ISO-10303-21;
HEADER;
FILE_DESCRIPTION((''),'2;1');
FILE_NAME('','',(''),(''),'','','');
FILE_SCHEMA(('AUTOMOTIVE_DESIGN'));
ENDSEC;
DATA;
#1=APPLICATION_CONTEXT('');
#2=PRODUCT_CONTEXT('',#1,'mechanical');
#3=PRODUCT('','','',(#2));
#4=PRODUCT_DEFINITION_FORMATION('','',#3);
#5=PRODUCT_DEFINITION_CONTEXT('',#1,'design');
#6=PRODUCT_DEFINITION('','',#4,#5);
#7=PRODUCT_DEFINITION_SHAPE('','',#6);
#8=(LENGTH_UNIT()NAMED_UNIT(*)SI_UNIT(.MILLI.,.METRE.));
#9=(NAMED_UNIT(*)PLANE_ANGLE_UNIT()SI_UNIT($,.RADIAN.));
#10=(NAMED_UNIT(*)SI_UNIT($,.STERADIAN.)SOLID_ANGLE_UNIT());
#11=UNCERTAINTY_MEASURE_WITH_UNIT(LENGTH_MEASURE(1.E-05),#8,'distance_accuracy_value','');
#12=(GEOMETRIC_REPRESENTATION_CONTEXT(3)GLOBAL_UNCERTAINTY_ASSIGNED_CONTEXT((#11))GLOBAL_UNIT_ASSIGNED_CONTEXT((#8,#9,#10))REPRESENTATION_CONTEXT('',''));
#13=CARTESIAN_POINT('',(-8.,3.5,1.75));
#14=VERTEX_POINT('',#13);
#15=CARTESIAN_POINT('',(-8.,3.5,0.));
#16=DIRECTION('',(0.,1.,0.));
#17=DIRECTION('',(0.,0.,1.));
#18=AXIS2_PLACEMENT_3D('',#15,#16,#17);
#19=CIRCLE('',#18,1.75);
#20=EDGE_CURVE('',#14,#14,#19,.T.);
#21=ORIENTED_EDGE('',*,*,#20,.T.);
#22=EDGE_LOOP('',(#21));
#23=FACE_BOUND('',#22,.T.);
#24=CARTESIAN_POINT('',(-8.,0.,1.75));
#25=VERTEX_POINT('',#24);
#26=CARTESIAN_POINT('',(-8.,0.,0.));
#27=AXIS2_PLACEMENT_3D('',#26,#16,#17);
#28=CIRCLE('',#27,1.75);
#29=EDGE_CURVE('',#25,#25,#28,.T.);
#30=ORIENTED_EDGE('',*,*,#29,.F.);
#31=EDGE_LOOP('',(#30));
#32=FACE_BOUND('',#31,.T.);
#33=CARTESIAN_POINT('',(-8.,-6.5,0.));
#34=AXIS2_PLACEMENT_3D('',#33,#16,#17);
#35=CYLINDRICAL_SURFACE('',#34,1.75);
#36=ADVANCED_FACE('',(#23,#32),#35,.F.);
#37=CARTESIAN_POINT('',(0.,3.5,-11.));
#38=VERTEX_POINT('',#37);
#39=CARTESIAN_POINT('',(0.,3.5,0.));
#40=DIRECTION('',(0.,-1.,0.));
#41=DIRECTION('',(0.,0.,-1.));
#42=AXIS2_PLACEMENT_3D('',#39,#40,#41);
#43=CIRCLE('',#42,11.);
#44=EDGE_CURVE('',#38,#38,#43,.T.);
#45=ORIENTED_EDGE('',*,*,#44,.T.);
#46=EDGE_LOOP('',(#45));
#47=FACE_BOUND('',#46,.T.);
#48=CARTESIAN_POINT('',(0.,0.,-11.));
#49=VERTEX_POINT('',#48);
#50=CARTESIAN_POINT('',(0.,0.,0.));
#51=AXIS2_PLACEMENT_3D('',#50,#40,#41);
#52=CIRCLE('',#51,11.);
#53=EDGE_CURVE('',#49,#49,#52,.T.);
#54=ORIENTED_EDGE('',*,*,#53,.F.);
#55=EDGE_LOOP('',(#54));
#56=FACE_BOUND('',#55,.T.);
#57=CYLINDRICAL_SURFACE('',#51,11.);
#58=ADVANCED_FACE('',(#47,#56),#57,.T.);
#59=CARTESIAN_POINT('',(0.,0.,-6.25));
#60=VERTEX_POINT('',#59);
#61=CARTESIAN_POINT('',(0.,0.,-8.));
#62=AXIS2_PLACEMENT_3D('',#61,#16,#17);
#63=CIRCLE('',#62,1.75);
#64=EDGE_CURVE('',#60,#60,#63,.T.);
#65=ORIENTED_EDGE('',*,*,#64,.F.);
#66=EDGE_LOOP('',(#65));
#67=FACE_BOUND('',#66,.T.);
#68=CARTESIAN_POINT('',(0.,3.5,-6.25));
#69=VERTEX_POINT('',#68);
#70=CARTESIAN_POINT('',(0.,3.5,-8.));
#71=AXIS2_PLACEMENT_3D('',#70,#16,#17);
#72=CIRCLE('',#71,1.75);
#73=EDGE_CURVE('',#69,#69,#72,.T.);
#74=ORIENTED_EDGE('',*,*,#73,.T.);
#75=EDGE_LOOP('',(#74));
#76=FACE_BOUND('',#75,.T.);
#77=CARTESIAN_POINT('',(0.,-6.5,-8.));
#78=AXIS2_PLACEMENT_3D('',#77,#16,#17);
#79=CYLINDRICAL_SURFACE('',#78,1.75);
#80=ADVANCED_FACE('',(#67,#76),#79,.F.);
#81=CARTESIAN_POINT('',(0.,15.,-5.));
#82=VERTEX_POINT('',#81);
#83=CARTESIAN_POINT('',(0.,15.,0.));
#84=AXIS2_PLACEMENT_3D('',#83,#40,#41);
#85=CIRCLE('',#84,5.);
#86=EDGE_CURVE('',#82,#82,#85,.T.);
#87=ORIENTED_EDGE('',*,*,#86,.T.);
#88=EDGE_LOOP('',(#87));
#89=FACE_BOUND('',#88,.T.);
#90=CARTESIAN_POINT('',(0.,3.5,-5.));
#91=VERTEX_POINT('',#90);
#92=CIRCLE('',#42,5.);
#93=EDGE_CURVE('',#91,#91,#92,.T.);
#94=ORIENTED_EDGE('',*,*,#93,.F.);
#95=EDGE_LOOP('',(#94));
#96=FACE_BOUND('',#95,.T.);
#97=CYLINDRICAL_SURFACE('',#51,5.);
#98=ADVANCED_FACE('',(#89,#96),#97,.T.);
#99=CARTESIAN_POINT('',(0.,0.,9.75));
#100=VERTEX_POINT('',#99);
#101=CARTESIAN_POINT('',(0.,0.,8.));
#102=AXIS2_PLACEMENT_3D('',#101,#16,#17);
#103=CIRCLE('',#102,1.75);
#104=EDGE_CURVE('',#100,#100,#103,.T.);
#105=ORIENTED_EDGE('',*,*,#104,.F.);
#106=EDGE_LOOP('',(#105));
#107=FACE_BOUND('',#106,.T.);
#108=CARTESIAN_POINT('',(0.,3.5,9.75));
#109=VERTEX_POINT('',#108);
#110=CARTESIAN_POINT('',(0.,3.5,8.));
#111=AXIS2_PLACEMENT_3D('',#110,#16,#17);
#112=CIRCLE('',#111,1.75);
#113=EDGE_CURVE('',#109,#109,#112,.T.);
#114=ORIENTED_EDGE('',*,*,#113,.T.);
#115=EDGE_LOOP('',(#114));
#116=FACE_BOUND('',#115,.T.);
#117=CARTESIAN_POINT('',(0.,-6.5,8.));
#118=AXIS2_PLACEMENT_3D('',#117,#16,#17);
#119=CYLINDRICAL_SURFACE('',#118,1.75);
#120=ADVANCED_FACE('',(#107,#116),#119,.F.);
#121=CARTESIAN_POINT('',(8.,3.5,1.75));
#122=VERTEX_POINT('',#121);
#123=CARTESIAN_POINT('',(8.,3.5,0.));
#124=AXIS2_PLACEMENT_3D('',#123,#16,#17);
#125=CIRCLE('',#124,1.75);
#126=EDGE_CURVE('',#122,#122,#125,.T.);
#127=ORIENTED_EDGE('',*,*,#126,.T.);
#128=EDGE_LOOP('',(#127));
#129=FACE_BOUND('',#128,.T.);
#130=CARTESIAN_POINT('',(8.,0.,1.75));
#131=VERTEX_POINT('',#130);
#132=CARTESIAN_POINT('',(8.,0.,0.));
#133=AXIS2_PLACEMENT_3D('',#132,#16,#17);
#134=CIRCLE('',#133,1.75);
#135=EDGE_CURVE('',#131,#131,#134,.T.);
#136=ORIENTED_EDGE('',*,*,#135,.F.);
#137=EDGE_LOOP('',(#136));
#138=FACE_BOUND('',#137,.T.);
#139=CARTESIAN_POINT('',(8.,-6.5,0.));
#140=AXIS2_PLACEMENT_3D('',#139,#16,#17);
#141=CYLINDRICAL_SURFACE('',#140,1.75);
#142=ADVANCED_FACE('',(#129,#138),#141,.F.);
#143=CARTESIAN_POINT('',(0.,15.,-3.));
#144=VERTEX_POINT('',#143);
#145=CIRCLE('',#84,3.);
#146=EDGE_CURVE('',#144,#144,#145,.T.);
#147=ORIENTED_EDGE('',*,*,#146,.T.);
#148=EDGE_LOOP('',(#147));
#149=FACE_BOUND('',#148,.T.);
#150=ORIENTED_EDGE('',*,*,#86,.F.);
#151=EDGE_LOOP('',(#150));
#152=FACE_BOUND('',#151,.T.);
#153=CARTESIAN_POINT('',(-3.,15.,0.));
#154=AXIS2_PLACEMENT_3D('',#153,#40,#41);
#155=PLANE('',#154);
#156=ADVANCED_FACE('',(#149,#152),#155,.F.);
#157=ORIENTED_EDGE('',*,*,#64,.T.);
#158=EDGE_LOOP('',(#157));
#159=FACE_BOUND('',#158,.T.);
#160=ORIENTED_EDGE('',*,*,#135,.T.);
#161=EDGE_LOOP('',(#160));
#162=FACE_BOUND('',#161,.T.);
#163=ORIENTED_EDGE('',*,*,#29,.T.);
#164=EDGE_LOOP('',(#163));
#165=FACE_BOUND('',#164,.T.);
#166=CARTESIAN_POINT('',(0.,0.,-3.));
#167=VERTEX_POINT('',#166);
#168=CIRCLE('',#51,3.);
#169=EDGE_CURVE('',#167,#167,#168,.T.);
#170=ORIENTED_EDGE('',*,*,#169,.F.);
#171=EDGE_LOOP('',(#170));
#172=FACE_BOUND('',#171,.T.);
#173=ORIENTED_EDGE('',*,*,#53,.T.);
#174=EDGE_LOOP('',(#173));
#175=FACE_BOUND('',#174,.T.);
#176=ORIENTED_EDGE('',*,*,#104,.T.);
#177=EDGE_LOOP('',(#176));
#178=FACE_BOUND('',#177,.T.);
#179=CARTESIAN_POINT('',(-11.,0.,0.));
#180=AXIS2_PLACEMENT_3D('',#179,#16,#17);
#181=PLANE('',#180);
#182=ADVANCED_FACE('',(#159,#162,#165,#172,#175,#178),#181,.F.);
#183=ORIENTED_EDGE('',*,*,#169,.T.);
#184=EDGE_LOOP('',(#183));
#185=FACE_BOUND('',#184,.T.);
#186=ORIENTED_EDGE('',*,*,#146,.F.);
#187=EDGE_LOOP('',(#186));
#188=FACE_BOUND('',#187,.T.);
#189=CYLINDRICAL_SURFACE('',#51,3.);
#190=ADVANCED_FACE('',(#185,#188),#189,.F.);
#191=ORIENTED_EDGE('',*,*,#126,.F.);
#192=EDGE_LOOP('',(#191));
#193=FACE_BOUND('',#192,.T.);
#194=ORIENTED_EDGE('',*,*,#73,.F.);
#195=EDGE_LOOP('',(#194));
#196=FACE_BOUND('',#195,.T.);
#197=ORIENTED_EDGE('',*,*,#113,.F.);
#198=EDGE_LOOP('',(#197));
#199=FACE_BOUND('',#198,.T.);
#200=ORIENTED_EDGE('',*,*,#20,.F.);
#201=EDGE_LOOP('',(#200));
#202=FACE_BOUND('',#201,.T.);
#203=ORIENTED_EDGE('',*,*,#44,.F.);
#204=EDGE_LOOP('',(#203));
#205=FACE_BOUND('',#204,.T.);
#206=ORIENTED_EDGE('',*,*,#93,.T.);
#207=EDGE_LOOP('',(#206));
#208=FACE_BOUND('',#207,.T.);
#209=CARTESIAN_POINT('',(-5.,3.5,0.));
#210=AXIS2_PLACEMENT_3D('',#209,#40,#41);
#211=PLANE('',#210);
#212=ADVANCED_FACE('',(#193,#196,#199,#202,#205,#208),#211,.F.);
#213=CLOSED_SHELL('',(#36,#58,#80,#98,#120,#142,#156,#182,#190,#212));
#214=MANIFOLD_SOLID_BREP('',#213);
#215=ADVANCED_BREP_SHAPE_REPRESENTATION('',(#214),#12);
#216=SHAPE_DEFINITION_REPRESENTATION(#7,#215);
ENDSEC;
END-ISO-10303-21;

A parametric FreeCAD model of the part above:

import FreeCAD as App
import Part
import Sketcher
from FreeCAD import Vector

doc = App.newDocument("Part")
body = doc.addObject("PartDesign::Body", "Body")

sketch1 = body.newObject("Sketcher::SketchObject", "Sketch")
sketch1.AttachmentSupport = (doc.getObject("XY_Plane"), [""])
sketch1.MapMode = "FlatFace"
sketch1.addGeometry(Part.LineSegment(Vector(-5, 15, 0), Vector(-5, 3.5, 0)), False)
sketch1.addGeometry(Part.LineSegment(Vector(-5, 3.5, 0), Vector(-11, 3.5, 0)), False)
sketch1.addGeometry(Part.LineSegment(Vector(-11, 3.5, 0), Vector(-11, 0, 0)), False)
sketch1.addGeometry(Part.LineSegment(Vector(-11, 0, 0), Vector(-3, 0, 0)), False)
sketch1.addGeometry(Part.LineSegment(Vector(-3, 0, 0), Vector(-3, 15, 0)), False)
sketch1.addGeometry(Part.LineSegment(Vector(-3, 15, 0), Vector(-5, 15, 0)), False)
sketch1.addConstraint(Sketcher.Constraint("Coincident", 0, 2, 1, 1))
sketch1.addConstraint(Sketcher.Constraint("Coincident", 1, 2, 2, 1))
sketch1.addConstraint(Sketcher.Constraint("Coincident", 2, 2, 3, 1))
sketch1.addConstraint(Sketcher.Constraint("Coincident", 3, 2, 4, 1))
sketch1.addConstraint(Sketcher.Constraint("Coincident", 4, 2, 5, 1))
sketch1.addConstraint(Sketcher.Constraint("Coincident", 5, 2, 0, 1))
sketch1.addConstraint(Sketcher.Constraint("Vertical", 0))
sketch1.addConstraint(Sketcher.Constraint("Horizontal", 1))
sketch1.addConstraint(Sketcher.Constraint("Vertical", 2))
sketch1.addConstraint(Sketcher.Constraint("Horizontal", 3))
sketch1.addConstraint(Sketcher.Constraint("Vertical", 4))
sketch1.addConstraint(Sketcher.Constraint("Horizontal", 5))
sketch1.addConstraint(Sketcher.Constraint("PointOnObject", 2, 2, -1))
sketch1.addConstraint(Sketcher.Constraint("DistanceX", 1, 2, 1, 1, 6.0))
sketch1.addConstraint(Sketcher.Constraint("DistanceX", 3, 1, 3, 2, 8.0))
sketch1.addConstraint(Sketcher.Constraint("DistanceY", 4, 1, 4, 2, 15.0))
sketch1.addConstraint(Sketcher.Constraint("DistanceY", 0, 2, 0, 1, 11.5))
sketch1.addConstraint(Sketcher.Constraint("DistanceX", 0, 2, -1, 1, 5.0))
revolution = body.newObject("PartDesign::Revolution", "Revolution")
revolution.Profile = sketch1
revolution.ReferenceAxis = (sketch1, ["V_Axis"])
revolution.Angle = 360

sketch2 = body.newObject("Sketcher::SketchObject", "Sketch001")
sketch2.AttachmentSupport = (doc.getObject("XZ_Plane"), [""])
sketch2.MapMode = "FlatFace"
sketch2.AttachmentOffset = App.Placement(Vector(0, 0, -3.5), App.Rotation())
sketch2.addGeometry(Part.Circle(Vector(0, -8, 0), Vector(0, 0, 1), 1.8), False)
sketch2.addGeometry(Part.Circle(Vector(8, 0, 0), Vector(0, 0, 1), 1.8), False)
sketch2.addGeometry(Part.Circle(Vector(0, 8, 0), Vector(0, 0, 1), 1.8), False)
sketch2.addGeometry(Part.Circle(Vector(-8, 0, 0), Vector(0, 0, 1), 1.8), False)
sketch2.addConstraint(Sketcher.Constraint("Equal", 0, 1))
sketch2.addConstraint(Sketcher.Constraint("Equal", 1, 2))
sketch2.addConstraint(Sketcher.Constraint("Equal", 2, 3))
sketch2.addConstraint(Sketcher.Constraint("Symmetric", 0, 3, 2, 3, -1, 1))
sketch2.addConstraint(Sketcher.Constraint("Symmetric", 1, 3, 3, 3, -1, 1))
sketch2.addConstraint(Sketcher.Constraint("PointOnObject", 0, 3, -2))
sketch2.addConstraint(Sketcher.Constraint("PointOnObject", 1, 3, -1))
sketch2.addConstraint(Sketcher.Constraint("Diameter", 0, 3.5))
sketch2.addConstraint(Sketcher.Constraint("DistanceY", 0, 3, -1, 1, 8.0))
sketch2.addConstraint(Sketcher.Constraint("DistanceX", -1, 1, 1, 3, 8.0))
pocket1 = body.newObject("PartDesign::Pocket", "Pocket")
pocket1.Profile = sketch2
pocket1.Length = 10
pocket1.Reversed = True

doc.recompute()
